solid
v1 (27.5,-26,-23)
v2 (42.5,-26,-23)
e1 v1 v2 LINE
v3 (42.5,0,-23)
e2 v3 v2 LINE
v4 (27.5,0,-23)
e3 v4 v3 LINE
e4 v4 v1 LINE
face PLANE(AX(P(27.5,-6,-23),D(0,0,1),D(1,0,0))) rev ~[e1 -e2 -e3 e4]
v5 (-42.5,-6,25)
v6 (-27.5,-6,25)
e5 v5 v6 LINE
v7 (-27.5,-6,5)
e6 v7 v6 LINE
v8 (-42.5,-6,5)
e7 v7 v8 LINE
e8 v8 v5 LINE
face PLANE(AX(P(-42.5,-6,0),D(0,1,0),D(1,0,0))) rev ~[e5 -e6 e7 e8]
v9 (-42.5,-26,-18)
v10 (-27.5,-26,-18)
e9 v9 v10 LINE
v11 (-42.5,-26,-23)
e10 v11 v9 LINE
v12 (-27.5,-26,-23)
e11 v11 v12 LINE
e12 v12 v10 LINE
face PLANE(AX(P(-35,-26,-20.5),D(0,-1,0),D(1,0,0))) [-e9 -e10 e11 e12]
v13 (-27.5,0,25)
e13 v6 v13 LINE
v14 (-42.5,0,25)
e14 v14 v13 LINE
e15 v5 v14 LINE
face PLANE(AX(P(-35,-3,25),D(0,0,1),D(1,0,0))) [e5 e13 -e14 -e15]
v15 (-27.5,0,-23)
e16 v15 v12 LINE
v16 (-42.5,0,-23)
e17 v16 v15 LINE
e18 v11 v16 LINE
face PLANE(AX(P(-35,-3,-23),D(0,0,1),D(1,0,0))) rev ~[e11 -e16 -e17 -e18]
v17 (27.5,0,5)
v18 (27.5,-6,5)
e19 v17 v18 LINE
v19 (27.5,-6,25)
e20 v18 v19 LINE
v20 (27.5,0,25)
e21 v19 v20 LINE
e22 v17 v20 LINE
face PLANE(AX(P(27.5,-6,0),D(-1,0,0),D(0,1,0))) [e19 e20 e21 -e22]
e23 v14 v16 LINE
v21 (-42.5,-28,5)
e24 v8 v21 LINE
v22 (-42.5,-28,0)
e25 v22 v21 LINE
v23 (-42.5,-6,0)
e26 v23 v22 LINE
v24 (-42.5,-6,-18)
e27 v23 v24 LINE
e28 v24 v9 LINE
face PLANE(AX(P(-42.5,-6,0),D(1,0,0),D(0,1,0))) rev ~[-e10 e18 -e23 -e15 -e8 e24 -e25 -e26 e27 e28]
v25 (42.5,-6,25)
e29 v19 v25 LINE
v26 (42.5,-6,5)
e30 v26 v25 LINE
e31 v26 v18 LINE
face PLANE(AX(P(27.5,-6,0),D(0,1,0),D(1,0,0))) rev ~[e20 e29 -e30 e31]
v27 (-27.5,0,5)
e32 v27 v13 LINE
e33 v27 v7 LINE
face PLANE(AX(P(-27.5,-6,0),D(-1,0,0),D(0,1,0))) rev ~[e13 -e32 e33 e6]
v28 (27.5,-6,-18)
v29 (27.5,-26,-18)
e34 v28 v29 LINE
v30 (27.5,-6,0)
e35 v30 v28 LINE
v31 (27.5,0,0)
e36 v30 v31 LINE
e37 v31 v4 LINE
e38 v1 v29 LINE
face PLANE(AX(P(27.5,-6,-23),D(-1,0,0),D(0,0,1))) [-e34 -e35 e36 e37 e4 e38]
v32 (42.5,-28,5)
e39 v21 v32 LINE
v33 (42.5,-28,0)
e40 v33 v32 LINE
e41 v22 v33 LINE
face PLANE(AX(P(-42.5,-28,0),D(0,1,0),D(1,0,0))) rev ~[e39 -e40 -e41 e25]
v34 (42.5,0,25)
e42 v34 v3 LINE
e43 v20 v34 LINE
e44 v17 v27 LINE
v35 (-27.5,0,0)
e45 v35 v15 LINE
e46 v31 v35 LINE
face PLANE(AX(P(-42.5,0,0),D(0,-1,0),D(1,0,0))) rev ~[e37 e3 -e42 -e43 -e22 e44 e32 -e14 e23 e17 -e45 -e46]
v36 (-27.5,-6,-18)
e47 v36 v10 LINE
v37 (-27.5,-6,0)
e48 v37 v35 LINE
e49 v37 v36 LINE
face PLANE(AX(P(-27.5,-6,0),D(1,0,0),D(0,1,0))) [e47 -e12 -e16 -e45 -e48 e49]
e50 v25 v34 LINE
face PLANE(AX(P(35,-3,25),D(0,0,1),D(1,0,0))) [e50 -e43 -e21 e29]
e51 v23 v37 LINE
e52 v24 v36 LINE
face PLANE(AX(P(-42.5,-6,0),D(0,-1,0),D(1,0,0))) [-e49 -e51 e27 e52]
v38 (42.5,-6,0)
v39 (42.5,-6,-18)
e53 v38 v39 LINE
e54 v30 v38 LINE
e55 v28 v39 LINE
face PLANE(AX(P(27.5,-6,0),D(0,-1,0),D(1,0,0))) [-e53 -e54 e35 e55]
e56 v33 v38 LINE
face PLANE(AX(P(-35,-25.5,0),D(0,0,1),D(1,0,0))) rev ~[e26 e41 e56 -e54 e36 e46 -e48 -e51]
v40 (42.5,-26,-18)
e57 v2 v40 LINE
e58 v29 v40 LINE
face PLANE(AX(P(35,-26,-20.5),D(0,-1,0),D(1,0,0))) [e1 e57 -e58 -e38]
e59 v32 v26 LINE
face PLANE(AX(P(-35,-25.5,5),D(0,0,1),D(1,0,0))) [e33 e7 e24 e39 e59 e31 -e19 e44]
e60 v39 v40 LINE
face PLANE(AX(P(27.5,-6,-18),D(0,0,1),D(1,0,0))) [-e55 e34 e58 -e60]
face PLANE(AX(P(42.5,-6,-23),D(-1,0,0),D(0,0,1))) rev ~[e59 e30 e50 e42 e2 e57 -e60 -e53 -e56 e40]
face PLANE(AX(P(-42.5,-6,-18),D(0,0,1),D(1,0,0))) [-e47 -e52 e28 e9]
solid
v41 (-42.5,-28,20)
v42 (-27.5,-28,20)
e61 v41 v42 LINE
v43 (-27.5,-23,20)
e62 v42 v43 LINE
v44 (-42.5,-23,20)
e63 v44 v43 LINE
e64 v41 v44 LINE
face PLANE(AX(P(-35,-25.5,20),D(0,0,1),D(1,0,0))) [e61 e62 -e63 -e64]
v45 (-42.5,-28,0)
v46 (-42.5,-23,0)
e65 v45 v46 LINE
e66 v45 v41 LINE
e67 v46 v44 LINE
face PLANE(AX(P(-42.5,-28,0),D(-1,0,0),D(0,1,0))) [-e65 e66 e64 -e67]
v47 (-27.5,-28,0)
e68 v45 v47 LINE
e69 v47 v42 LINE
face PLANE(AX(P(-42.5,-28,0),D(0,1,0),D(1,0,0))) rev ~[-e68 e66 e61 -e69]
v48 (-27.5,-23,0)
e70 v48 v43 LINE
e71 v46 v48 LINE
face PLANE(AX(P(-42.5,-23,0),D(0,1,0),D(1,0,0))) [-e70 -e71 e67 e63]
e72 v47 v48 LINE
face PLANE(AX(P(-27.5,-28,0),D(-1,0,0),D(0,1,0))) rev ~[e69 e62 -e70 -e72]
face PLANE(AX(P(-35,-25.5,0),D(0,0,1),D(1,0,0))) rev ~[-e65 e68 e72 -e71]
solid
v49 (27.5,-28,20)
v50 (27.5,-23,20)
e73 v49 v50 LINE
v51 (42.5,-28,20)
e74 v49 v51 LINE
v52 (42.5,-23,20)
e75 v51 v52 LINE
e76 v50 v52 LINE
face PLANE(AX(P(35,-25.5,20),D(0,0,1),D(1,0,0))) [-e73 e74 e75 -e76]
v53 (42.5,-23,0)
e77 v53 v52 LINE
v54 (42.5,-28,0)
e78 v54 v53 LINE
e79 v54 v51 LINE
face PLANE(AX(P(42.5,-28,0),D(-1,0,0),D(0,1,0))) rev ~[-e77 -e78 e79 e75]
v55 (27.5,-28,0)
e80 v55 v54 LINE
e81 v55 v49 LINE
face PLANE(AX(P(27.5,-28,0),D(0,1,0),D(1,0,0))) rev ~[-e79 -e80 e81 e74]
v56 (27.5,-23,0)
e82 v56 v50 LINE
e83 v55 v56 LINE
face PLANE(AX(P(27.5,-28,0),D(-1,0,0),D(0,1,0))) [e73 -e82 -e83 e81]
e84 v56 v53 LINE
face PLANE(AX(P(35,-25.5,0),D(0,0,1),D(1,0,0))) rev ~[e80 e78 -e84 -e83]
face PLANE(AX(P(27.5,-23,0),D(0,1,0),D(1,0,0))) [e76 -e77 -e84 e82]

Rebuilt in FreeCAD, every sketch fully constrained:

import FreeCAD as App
import Part
import Sketcher

V = App.Vector
Q = App.Units.Quantity


def add_polygon(sketch, points):
    """Adds a closed chain of lines whose ends are joined by coincident constraints."""
    first, n = sketch.GeometryCount, len(points)
    for a, b in zip(points, points[1:] + points[:1]):
        sketch.addGeometry(Part.LineSegment(App.Vector(*a, 0), App.Vector(*b, 0)), False)
    for i in range(n):
        sketch.addConstraint(Sketcher.Constraint("Coincident", first + i, 2, first + (i + 1) % n, 1))

doc = App.newDocument("Part")
body = doc.addObject("PartDesign::Body", "Body")

# Sketch on XY plane
sketch1 = body.newObject("Sketcher::SketchObject", "Sketch")
sketch1.AttachmentSupport = (doc.getObject("XY_Plane"), [""])
sketch1.MapMode = "FlatFace"
add_polygon(sketch1, [(-42, -28), (42, -28), (42, 0), (-42, 0)])  # lines 0-3
sketch1.addConstraint([
    Sketcher.Constraint("Horizontal", 0),
    Sketcher.Constraint("Vertical", 1),
    Sketcher.Constraint("Horizontal", 2),
    Sketcher.Constraint("Vertical", 3),
    Sketcher.Constraint("Symmetric", 1, 2, 2, 2, -1, 1),
    Sketcher.Constraint("DistanceX", 0, 1, 0, 2, Q("85 mm")),
    Sketcher.Constraint("DistanceY", 1, 1, 1, 2, Q("28 mm")),
])
pad1 = body.newObject("PartDesign::Pad", "Pad")
pad1.Profile = sketch1
pad1.Length = 5

# Sketch on XY plane
sketch2 = body.newObject("Sketcher::SketchObject", "Sketch001")
sketch2.AttachmentSupport = (doc.getObject("XY_Plane"), [""])
sketch2.MapMode = "FlatFace"
add_polygon(sketch2, [(-42, 0), (-42, -6), (-28, -6), (-28, 0)])  # lines 0-3
add_polygon(sketch2, [(28, 0), (28, -6), (42, -6), (42, 0)])  # lines 4-7
sketch2.addConstraint([
    Sketcher.Constraint("Vertical", 0),
    Sketcher.Constraint("Horizontal", 1),
    Sketcher.Constraint("Vertical", 2),
    Sketcher.Constraint("Horizontal", 3),
    Sketcher.Constraint("Vertical", 4),
    Sketcher.Constraint("Horizontal", 5),
    Sketcher.Constraint("Vertical", 6),
    Sketcher.Constraint("Horizontal", 7),
    Sketcher.Constraint("Symmetric", 3, 2, 6, 2, -1, 1),
    Sketcher.Constraint("Symmetric", 1, 2, 4, 2, -2),
    Sketcher.Constraint("PointOnObject", 2, 2, -1),
    Sketcher.Constraint("DistanceX", 1, 1, 1, 2, Q("15 mm")),
    Sketcher.Constraint("DistanceY", 0, 2, 0, 1, Q("6 mm")),
    Sketcher.Constraint("DistanceX", 1, 2, 4, 2, Q("55 mm")),
])
pad2 = body.newObject("PartDesign::Pad", "Pad001")
pad2.Profile = sketch2
pad2.Type = "TwoLengths"
pad2.Length = 23
pad2.Length2 = 25
pad2.Reversed = True

# Sketch on XZ plane
sketch3 = body.newObject("Sketcher::SketchObject", "Sketch002")
sketch3.AttachmentSupport = (doc.getObject("XZ_Plane"), [""])
sketch3.MapMode = "FlatFace"
sketch3.AttachmentOffset = App.Placement(V(0, 0, 6), App.Rotation())
add_polygon(sketch3, [(28, -18), (28, -23), (42, -23), (42, -18)])  # lines 0-3
add_polygon(sketch3, [(-42, -18), (-42, -23), (-28, -23), (-28, -18)])  # lines 4-7
sketch3.addConstraint([
    Sketcher.Constraint("Vertical", 0),
    Sketcher.Constraint("Horizontal", 1),
    Sketcher.Constraint("Vertical", 2),
    Sketcher.Constraint("Horizontal", 3),
    Sketcher.Constraint("Vertical", 4),
    Sketcher.Constraint("Horizontal", 5),
    Sketcher.Constraint("Vertical", 6),
    Sketcher.Constraint("Horizontal", 7),
    Sketcher.Constraint("Symmetric", 1, 2, 4, 2, -2),
    Sketcher.Constraint("Symmetric", 3, 2, 6, 2, -2),
    Sketcher.Constraint("DistanceX", 1, 1, 1, 2, Q("15 mm")),
    Sketcher.Constraint("DistanceY", 0, 2, 0, 1, Q("5 mm")),
    Sketcher.Constraint("DistanceY", 0, 2, -1, 1, Q("23 mm")),
    Sketcher.Constraint("DistanceX", 4, 2, 0, 2, Q("70 mm")),
])
pad3 = body.newObject("PartDesign::Pad", "Pad002")
pad3.Profile = sketch3
pad3.Length = 20
body2 = doc.addObject("PartDesign::Body", "Body001")

# Sketch on XY plane
sketch4 = body2.newObject("Sketcher::SketchObject", "Sketch003")
sketch4.AttachmentSupport = (doc.getObject("XY_Plane001"), [""])
sketch4.MapMode = "FlatFace"
add_polygon(sketch4, [(-42, -23), (-42, -28), (-28, -28), (-28, -23)])  # lines 0-3
sketch4.addConstraint([
    Sketcher.Constraint("Vertical", 0),
    Sketcher.Constraint("Horizontal", 1),
    Sketcher.Constraint("Vertical", 2),
    Sketcher.Constraint("Horizontal", 3),
    Sketcher.Constraint("DistanceX", 1, 1, 1, 2, Q("15 mm")),
    Sketcher.Constraint("DistanceY", 0, 2, 0, 1, Q("5 mm")),
    Sketcher.Constraint("DistanceY", 0, 2, -1, 1, Q("28 mm")),
    Sketcher.Constraint("DistanceX", 0, 2, -1, 1, Q("42.5 mm")),
])
pad4 = body2.newObject("PartDesign::Pad", "Pad003")
pad4.Profile = sketch4
pad4.Length = 20
body3 = doc.addObject("PartDesign::Body", "Body002")

# Sketch on XY plane
sketch5 = body3.newObject("Sketcher::SketchObject", "Sketch004")
sketch5.AttachmentSupport = (doc.getObject("XY_Plane002"), [""])
sketch5.MapMode = "FlatFace"
add_polygon(sketch5, [(28, -23), (28, -28), (42, -28), (42, -23)])  # lines 0-3
sketch5.addConstraint([
    Sketcher.Constraint("Vertical", 0),
    Sketcher.Constraint("Horizontal", 1),
    Sketcher.Constraint("Vertical", 2),
    Sketcher.Constraint("Horizontal", 3),
    Sketcher.Constraint("DistanceX", 1, 1, 1, 2, Q("15 mm")),
    Sketcher.Constraint("DistanceY", 0, 2, 0, 1, Q("5 mm")),
    Sketcher.Constraint("DistanceY", 0, 2, -1, 1, Q("28 mm")),
    Sketcher.Constraint("DistanceX", -1, 1, 0, 2, Q("27.5 mm")),
])
pad5 = body3.newObject("PartDesign::Pad", "Pad004")
pad5.Profile = sketch5
pad5.Length = 20

doc.recompute()
